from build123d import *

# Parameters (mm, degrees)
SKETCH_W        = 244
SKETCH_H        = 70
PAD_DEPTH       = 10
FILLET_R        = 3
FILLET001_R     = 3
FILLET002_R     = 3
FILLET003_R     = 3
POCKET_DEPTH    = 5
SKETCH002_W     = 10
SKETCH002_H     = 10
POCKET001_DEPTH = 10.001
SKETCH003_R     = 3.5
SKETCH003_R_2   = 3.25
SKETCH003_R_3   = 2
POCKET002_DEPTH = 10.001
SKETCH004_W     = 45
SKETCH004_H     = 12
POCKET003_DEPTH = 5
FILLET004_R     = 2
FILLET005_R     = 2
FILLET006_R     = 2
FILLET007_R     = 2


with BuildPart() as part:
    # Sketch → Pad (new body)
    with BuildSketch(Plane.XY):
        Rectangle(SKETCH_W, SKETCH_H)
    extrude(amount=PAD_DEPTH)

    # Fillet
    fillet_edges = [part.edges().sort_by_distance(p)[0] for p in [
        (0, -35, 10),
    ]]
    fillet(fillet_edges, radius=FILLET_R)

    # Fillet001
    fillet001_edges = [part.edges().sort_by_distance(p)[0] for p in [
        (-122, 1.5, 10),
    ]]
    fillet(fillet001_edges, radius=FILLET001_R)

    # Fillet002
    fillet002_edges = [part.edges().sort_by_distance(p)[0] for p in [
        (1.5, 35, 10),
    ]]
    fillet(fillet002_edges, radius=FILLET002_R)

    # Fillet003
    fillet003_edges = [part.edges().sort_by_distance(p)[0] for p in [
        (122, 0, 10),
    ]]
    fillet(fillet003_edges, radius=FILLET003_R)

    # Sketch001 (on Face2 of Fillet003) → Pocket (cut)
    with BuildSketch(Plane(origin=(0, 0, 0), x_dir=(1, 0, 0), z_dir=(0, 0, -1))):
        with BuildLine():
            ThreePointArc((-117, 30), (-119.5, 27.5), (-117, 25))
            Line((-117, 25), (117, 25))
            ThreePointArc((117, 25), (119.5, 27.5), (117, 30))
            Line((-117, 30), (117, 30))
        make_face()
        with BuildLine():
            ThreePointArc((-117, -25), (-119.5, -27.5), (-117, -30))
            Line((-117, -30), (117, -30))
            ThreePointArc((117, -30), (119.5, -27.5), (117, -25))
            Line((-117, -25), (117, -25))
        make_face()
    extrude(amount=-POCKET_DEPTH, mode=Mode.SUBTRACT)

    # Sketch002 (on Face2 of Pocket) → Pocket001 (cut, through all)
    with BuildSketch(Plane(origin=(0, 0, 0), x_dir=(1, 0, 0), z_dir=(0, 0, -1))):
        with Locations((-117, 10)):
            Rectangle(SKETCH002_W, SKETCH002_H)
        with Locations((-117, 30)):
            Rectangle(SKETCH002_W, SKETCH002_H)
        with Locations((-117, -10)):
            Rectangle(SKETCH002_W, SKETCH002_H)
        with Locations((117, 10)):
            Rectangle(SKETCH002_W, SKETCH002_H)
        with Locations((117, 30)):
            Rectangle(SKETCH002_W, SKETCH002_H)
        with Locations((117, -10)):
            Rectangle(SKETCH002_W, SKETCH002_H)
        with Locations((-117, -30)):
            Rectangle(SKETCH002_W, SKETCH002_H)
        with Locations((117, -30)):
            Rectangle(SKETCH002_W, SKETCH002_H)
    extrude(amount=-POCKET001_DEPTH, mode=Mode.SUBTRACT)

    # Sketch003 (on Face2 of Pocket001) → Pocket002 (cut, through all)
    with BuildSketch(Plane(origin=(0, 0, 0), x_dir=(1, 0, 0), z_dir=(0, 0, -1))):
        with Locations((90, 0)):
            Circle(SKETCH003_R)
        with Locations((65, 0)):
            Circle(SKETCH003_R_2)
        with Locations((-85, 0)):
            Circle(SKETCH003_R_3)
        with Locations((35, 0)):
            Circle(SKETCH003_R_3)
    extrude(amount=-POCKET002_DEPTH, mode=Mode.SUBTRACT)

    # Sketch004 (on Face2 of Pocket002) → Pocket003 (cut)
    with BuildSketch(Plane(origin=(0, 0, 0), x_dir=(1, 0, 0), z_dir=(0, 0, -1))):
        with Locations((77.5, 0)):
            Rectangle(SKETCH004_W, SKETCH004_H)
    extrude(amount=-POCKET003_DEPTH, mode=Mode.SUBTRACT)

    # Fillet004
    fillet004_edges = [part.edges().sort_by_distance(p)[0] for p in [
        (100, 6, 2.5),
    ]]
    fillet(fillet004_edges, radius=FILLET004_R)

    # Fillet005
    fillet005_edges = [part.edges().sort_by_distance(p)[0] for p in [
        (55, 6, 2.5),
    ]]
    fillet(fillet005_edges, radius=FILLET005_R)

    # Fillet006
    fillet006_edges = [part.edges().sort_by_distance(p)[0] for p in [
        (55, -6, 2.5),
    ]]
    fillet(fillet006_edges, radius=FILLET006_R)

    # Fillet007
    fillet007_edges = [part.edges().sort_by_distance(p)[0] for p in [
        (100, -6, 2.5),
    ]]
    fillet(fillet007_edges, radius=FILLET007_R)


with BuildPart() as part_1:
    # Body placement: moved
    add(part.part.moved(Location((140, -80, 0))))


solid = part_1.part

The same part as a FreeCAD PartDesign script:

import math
import FreeCAD as App
import Part
import Sketcher

V = App.Vector
Q = App.Units.Quantity


def edges_at(feature, points):
    """Names of the edges that pass closest to the given points."""
    edges = feature.Shape.Edges
    near = lambda p: min(range(len(edges)), key=lambda i: edges[i].distToShape(Part.Vertex(*p))[0])
    return sorted({f"Edge{near(p) + 1}" for p in points})

doc = App.newDocument("Part")
params = doc.addObject("Spreadsheet::Sheet", "Params")
for row, (alias, value) in enumerate([
    ("sketch1_width", "244 mm"),
    ("sketch1_height", "70 mm"),
    ("pad1_length", "10 mm"),
    ("fillet_radius", "3 mm"),
    ("fillet2_radius", "3 mm"),
    ("fillet3_radius", "3 mm"),
    ("fillet4_radius", "3 mm"),
    ("sketch2_radius", "2.5 mm"),
    ("sketch2_width", "234 mm"),
    ("pocket1_length", "5 mm"),
    ("sketch3_width", "10 mm"),
    ("sketch4_diameter", "7 mm"),
    ("sketch4_diameter2", "4 mm"),
    ("sketch4_diameter3", "6.5 mm"),
    ("sketch5_width", "45 mm"),
    ("sketch5_height", "12 mm"),
    ("pocket4_length", "5 mm"),
    ("fillet5_radius", "2 mm"),
    ("fillet6_radius", "2 mm"),
    ("fillet7_radius", "2 mm"),
    ("fillet8_radius", "2 mm"),
], start=1):
    params.set(f"A{row}", alias)
    params.set(f"B{row}", "=" + value)
    params.setAlias(f"B{row}", alias)

body = doc.addObject("PartDesign::Body", "Body")

sketch1 = body.newObject("Sketcher::SketchObject", "Sketch")
sketch1.AttachmentSupport = (doc.getObject("XY_Plane"), [""])
sketch1.MapMode = "FlatFace"
sketch1.addGeometry([
    Part.LineSegment(V(-122, 35, 0), V(-122, -35, 0)),
    Part.LineSegment(V(-122, -35, 0), V(122, -35, 0)),
    Part.LineSegment(V(122, -35, 0), V(122, 35, 0)),
    Part.LineSegment(V(122, 35, 0), V(-122, 35, 0)),
], False)
sketch1.addConstraint([
    Sketcher.Constraint("Coincident", 0, 2, 1, 1),
    Sketcher.Constraint("Coincident", 1, 2, 2, 1),
    Sketcher.Constraint("Coincident", 2, 2, 3, 1),
    Sketcher.Constraint("Coincident", 3, 2, 0, 1),
    Sketcher.Constraint("Vertical", 0),
    Sketcher.Constraint("Horizontal", 1),
    Sketcher.Constraint("Vertical", 2),
    Sketcher.Constraint("Horizontal", 3),
    Sketcher.Constraint("Symmetric", 0, 2, 2, 2, -1, 1),
    Sketcher.Constraint("DistanceX", 1, 1, 1, 2, Q("244 mm")),
    Sketcher.Constraint("DistanceY", 0, 2, 0, 1, Q("70 mm")),
])
sketch1.setExpression("Constraints[9]", "Params.sketch1_width")
sketch1.setExpression("Constraints[10]", "Params.sketch1_height")
pad1 = body.newObject("PartDesign::Pad", "Pad")
pad1.Profile = sketch1
pad1.setExpression("Length", "Params.pad1_length")
doc.recompute()

fillet = body.newObject("PartDesign::Fillet", "Fillet")
fillet.Base = (pad1, edges_at(pad1, [(0, -35, 10)]))
fillet.setExpression("Radius", "Params.fillet_radius")
doc.recompute()

fillet2 = body.newObject("PartDesign::Fillet", "Fillet001")
fillet2.Base = (fillet, edges_at(fillet, [(-122, 1.5, 10)]))
fillet2.setExpression("Radius", "Params.fillet2_radius")
doc.recompute()

fillet3 = body.newObject("PartDesign::Fillet", "Fillet002")
fillet3.Base = (fillet2, edges_at(fillet2, [(1.5, 35, 10)]))
fillet3.setExpression("Radius", "Params.fillet3_radius")
doc.recompute()

fillet4 = body.newObject("PartDesign::Fillet", "Fillet003")
fillet4.Base = (fillet3, edges_at(fillet3, [(122, 0, 10)]))
fillet4.setExpression("Radius", "Params.fillet4_radius")

sketch2 = body.newObject("Sketcher::SketchObject", "Sketch001")
sketch2.AttachmentSupport = (doc.getObject("XY_Plane"), [""])
sketch2.MapMode = "FlatFace"
sketch2.addGeometry([
    Part.ArcOfCircle(Part.Circle(V(-117, -27.5, 0), V(0, 0, 1), 2.5), math.radians(90), math.radians(270)),
    Part.LineSegment(V(-117, -25, 0), V(117, -25, 0)),
    Part.ArcOfCircle(Part.Circle(V(117, -27.5, 0), V(0, 0, 1), 2.5), math.radians(-90), math.radians(90)),
    Part.LineSegment(V(117, -30, 0), V(-117, -30, 0)),
    Part.ArcOfCircle(Part.Circle(V(-117, 27.5, 0), V(0, 0, 1), 2.5), math.radians(90), math.radians(270)),
    Part.LineSegment(V(-117, 30, 0), V(117, 30, 0)),
    Part.ArcOfCircle(Part.Circle(V(117, 27.5, 0), V(0, 0, 1), 2.5), math.radians(-90), math.radians(90)),
    Part.LineSegment(V(117, 25, 0), V(-117, 25, 0)),
], False)
sketch2.addConstraint([
    Sketcher.Constraint("Tangent", 0, 1, 1, 1),
    Sketcher.Constraint("Tangent", 1, 2, 2, 2),
    Sketcher.Constraint("Tangent", 2, 1, 3, 1),
    Sketcher.Constraint("Tangent", 3, 2, 0, 2),
    Sketcher.Constraint("Tangent", 4, 1, 5, 1),
    Sketcher.Constraint("Tangent", 5, 2, 6, 2),
    Sketcher.Constraint("Tangent", 6, 1, 7, 1),
    Sketcher.Constraint("Tangent", 7, 2, 4, 2),
    Sketcher.Constraint("Horizontal", 1),
    Sketcher.Constraint("Horizontal", 3),
    Sketcher.Constraint("Horizontal", 5),
    Sketcher.Constraint("Horizontal", 7),
    Sketcher.Constraint("Equal", 2, 4),
    Sketcher.Constraint("Symmetric", 2, 3, 4, 3, -1, 1),
    Sketcher.Constraint("Vertical", 0, 3, 4, 3),
    Sketcher.Constraint("Vertical", 2, 3, 6, 3),
    Sketcher.Constraint("Radius", 0, Q("2.5 mm")),
    Sketcher.Constraint("DistanceX", 1, 1, 1, 2, Q("234 mm")),
    Sketcher.Constraint("DistanceY", 0, 1, -1, 1, Q("25 mm")),
])
sketch2.setExpression("Constraints[16]", "Params.sketch2_radius")
sketch2.setExpression("Constraints[17]", "Params.sketch2_width")
pocket1 = body.newObject("PartDesign::Pocket", "Pocket")
pocket1.Profile = sketch2
pocket1.setExpression("Length", "Params.pocket1_length")
pocket1.Reversed = True

sketch3 = body.newObject("Sketcher::SketchObject", "Sketch002")
sketch3.AttachmentSupport = (doc.getObject("XY_Plane"), [""])
sketch3.MapMode = "FlatFace"
sketch3.addGeometry([
    Part.LineSegment(V(-122, -15, 0), V(-122, -5, 0)),
    Part.LineSegment(V(-122, -5, 0), V(-112, -5, 0)),
    Part.LineSegment(V(-112, -5, 0), V(-112, -15, 0)),
    Part.LineSegment(V(-112, -15, 0), V(-122, -15, 0)),
    Part.LineSegment(V(-122, -35, 0), V(-122, -25, 0)),
    Part.LineSegment(V(-122, -25, 0), V(-112, -25, 0)),
    Part.LineSegment(V(-112, -25, 0), V(-112, -35, 0)),
    Part.LineSegment(V(-112, -35, 0), V(-122, -35, 0)),
    Part.LineSegment(V(-122, 5, 0), V(-122, 15, 0)),
    Part.LineSegment(V(-122, 15, 0), V(-112, 15, 0)),
    Part.LineSegment(V(-112, 15, 0), V(-112, 5, 0)),
    Part.LineSegment(V(-112, 5, 0), V(-122, 5, 0)),
    Part.LineSegment(V(112, -15, 0), V(112, -5, 0)),
    Part.LineSegment(V(112, -5, 0), V(122, -5, 0)),
    Part.LineSegment(V(122, -5, 0), V(122, -15, 0)),
    Part.LineSegment(V(122, -15, 0), V(112, -15, 0)),
    Part.LineSegment(V(112, -35, 0), V(112, -25, 0)),
    Part.LineSegment(V(112, -25, 0), V(122, -25, 0)),
    Part.LineSegment(V(122, -25, 0), V(122, -35, 0)),
    Part.LineSegment(V(122, -35, 0), V(112, -35, 0)),
    Part.LineSegment(V(112, 5, 0), V(112, 15, 0)),
    Part.LineSegment(V(112, 15, 0), V(122, 15, 0)),
    Part.LineSegment(V(122, 15, 0), V(122, 5, 0)),
    Part.LineSegment(V(122, 5, 0), V(112, 5, 0)),
    Part.LineSegment(V(-122, 25, 0), V(-122, 35, 0)),
    Part.LineSegment(V(-122, 35, 0), V(-112, 35, 0)),
    Part.LineSegment(V(-112, 35, 0), V(-112, 25, 0)),
    Part.LineSegment(V(-112, 25, 0), V(-122, 25, 0)),
    Part.LineSegment(V(112, 25, 0), V(112, 35, 0)),
    Part.LineSegment(V(112, 35, 0), V(122, 35, 0)),
    Part.LineSegment(V(122, 35, 0), V(122, 25, 0)),
    Part.LineSegment(V(122, 25, 0), V(112, 25, 0)),
], False)
sketch3.addConstraint([
    Sketcher.Constraint("Coincident", 0, 2, 1, 1),
    Sketcher.Constraint("Coincident", 1, 2, 2, 1),
    Sketcher.Constraint("Coincident", 2, 2, 3, 1),
    Sketcher.Constraint("Coincident", 3, 2, 0, 1),
    Sketcher.Constraint("Coincident", 4, 2, 5, 1),
    Sketcher.Constraint("Coincident", 5, 2, 6, 1),
    Sketcher.Constraint("Coincident", 6, 2, 7, 1),
    Sketcher.Constraint("Coincident", 7, 2, 4, 1),
    Sketcher.Constraint("Coincident", 8, 2, 9, 1),
    Sketcher.Constraint("Coincident", 9, 2, 10, 1),
    Sketcher.Constraint("Coincident", 10, 2, 11, 1),
    Sketcher.Constraint("Coincident", 11, 2, 8, 1),
    Sketcher.Constraint("Coincident", 12, 2, 13, 1),
    Sketcher.Constraint("Coincident", 13, 2, 14, 1),
    Sketcher.Constraint("Coincident", 14, 2, 15, 1),
    Sketcher.Constraint("Coincident", 15, 2, 12, 1),
    Sketcher.Constraint("Coincident", 16, 2, 17, 1),
    Sketcher.Constraint("Coincident", 17, 2, 18, 1),
    Sketcher.Constraint("Coincident", 18, 2, 19, 1),
    Sketcher.Constraint("Coincident", 19, 2, 16, 1),
    Sketcher.Constraint("Coincident", 20, 2, 21, 1),
    Sketcher.Constraint("Coincident", 21, 2, 22, 1),
    Sketcher.Constraint("Coincident", 22, 2, 23, 1),
    Sketcher.Constraint("Coincident", 23, 2, 20, 1),
    Sketcher.Constraint("Coincident", 24, 2, 25, 1),
    Sketcher.Constraint("Coincident", 25, 2, 26, 1),
    Sketcher.Constraint("Coincident", 26, 2, 27, 1),
    Sketcher.Constraint("Coincident", 27, 2, 24, 1),
    Sketcher.Constraint("Coincident", 28, 2, 29, 1),
    Sketcher.Constraint("Coincident", 29, 2, 30, 1),
    Sketcher.Constraint("Coincident", 30, 2, 31, 1),
    Sketcher.Constraint("Coincident", 31, 2, 28, 1),
    Sketcher.Constraint("Vertical", 0),
    Sketcher.Constraint("Horizontal", 1),
    Sketcher.Constraint("Vertical", 2),
    Sketcher.Constraint("Horizontal", 3),
    Sketcher.Constraint("Vertical", 4),
    Sketcher.Constraint("Horizontal", 5),
    Sketcher.Constraint("Vertical", 6),
    Sketcher.Constraint("Horizontal", 7),
    Sketcher.Constraint("Vertical", 8),
    Sketcher.Constraint("Horizontal", 9),
    Sketcher.Constraint("Vertical", 10),
    Sketcher.Constraint("Horizontal", 11),
    Sketcher.Constraint("Vertical", 12),
    Sketcher.Constraint("Horizontal", 13),
    Sketcher.Constraint("Vertical", 14),
    Sketcher.Constraint("Horizontal", 15),
    Sketcher.Constraint("Vertical", 16),
    Sketcher.Constraint("Horizontal", 17),
    Sketcher.Constraint("Vertical", 18),
    Sketcher.Constraint("Horizontal", 19),
    Sketcher.Constraint("Vertical", 20),
    Sketcher.Constraint("Horizontal", 21),
    Sketcher.Constraint("Vertical", 22),
    Sketcher.Constraint("Horizontal", 23),
    Sketcher.Constraint("Vertical", 24),
    Sketcher.Constraint("Horizontal", 25),
    Sketcher.Constraint("Vertical", 26),
    Sketcher.Constraint("Horizontal", 27),
    Sketcher.Constraint("Vertical", 28),
    Sketcher.Constraint("Horizontal", 29),
    Sketcher.Constraint("Vertical", 30),
    Sketcher.Constraint("Horizontal", 31),
    Sketcher.Constraint("Symmetric", 10, 2, 12, 2, -1, 1),
    Sketcher.Constraint("Symmetric", 8, 2, 14, 2, -1, 1),
    Sketcher.Constraint("Symmetric", 2, 2, 20, 2, -1, 1),
    Sketcher.Constraint("Symmetric", 0, 2, 22, 2, -1, 1),
    Sketcher.Constraint("Symmetric", 18, 2, 24, 2, -1, 1),
    Sketcher.Constraint("Symmetric", 16, 2, 26, 2, -1, 1),
    Sketcher.Constraint("Symmetric", 6, 2, 28, 2, -1, 1),
    Sketcher.Constraint("Symmetric", 4, 2, 30, 2, -1, 1),
    Sketcher.Constraint("Symmetric", 1, 2, 12, 2, -2),
    Sketcher.Constraint("Symmetric", 3, 2, 14, 2, -2),
    Sketcher.Constraint("Symmetric", 5, 2, 16, 2, -2),
    Sketcher.Constraint("Symmetric", 7, 2, 18, 2, -2),
    Sketcher.Constraint("Vertical", 3, 2, 4, 2),
    Sketcher.Constraint("Vertical", 2, 2, 5, 2),
    Sketcher.Constraint("Equal", 31, 0),
    Sketcher.Constraint("Equal", 2, 4),
    Sketcher.Constraint("DistanceX", 1, 1, 1, 2, Q("10 mm")),
    Sketcher.Constraint("DistanceX", 0, 2, -1, 1, Q("122 mm")),
    Sketcher.Constraint("DistanceY", 0, 2, -1, 1, Q("5 mm")),
    Sketcher.Constraint("DistanceY", 4, 2, -1, 1, Q("25 mm")),
])
sketch3.setExpression("Constraints[80]", "Params.sketch3_width")
pocket2 = body.newObject("PartDesign::Pocket", "Pocket001")
pocket2.Profile = sketch3
pocket2.Type = "ThroughAll"
pocket2.Reversed = True

sketch4 = body.newObject("Sketcher::SketchObject", "Sketch003")
sketch4.AttachmentSupport = (doc.getObject("XY_Plane"), [""])
sketch4.MapMode = "FlatFace"
sketch4.addGeometry([
    Part.Circle(V(90, 0, 0), V(0, 0, 1), 3.5),
    Part.Circle(V(65, 0, 0), V(0, 0, 1), 3.2),
    Part.Circle(V(-85, 0, 0), V(0, 0, 1), 2),
    Part.Circle(V(35, 0, 0), V(0, 0, 1), 2),
], False)
sketch4.addConstraint([
    Sketcher.Constraint("Equal", 2, 3),
    Sketcher.Constraint("PointOnObject", 0, 3, -1),
    Sketcher.Constraint("PointOnObject", 1, 3, -1),
    Sketcher.Constraint("PointOnObject", 2, 3, -1),
    Sketcher.Constraint("PointOnObject", 3, 3, -1),
    Sketcher.Constraint("Diameter", 0, Q("7 mm")),
    Sketcher.Constraint("Diameter", 2, Q("4 mm")),
    Sketcher.Constraint("Diameter", 1, Q("6.5 mm")),
    Sketcher.Constraint("DistanceX", -1, 1, 0, 3, Q("90 mm")),
    Sketcher.Constraint("DistanceX", -1, 1, 1, 3, Q("65 mm")),
    Sketcher.Constraint("DistanceX", 2, 3, -1, 1, Q("85 mm")),
    Sketcher.Constraint("DistanceX", -1, 1, 3, 3, Q("35 mm")),
])
sketch4.setExpression("Constraints[5]", "Params.sketch4_diameter")
sketch4.setExpression("Constraints[6]", "Params.sketch4_diameter2")
sketch4.setExpression("Constraints[7]", "Params.sketch4_diameter3")
pocket3 = body.newObject("PartDesign::Pocket", "Pocket002")
pocket3.Profile = sketch4
pocket3.Type = "ThroughAll"
pocket3.Reversed = True

sketch5 = body.newObject("Sketcher::SketchObject", "Sketch004")
sketch5.AttachmentSupport = (doc.getObject("XY_Plane"), [""])
sketch5.MapMode = "FlatFace"
sketch5.addGeometry([
    Part.LineSegment(V(55, -6, 0), V(55, 6, 0)),
    Part.LineSegment(V(55, 6, 0), V(100, 6, 0)),
    Part.LineSegment(V(100, 6, 0), V(100, -6, 0)),
    Part.LineSegment(V(100, -6, 0), V(55, -6, 0)),
], False)
sketch5.addConstraint([
    Sketcher.Constraint("Coincident", 0, 2, 1, 1),
    Sketcher.Constraint("Coincident", 1, 2, 2, 1),
    Sketcher.Constraint("Coincident", 2, 2, 3, 1),
    Sketcher.Constraint("Coincident", 3, 2, 0, 1),
    Sketcher.Constraint("Vertical", 0),
    Sketcher.Constraint("Horizontal", 1),
    Sketcher.Constraint("Vertical", 2),
    Sketcher.Constraint("Horizontal", 3),
    Sketcher.Constraint("DistanceX", 1, 1, 1, 2, Q("45 mm")),
    Sketcher.Constraint("DistanceY", 0, 1, 0, 2, Q("12 mm")),
    Sketcher.Constraint("DistanceX", -1, 1, 0, 2, Q("55 mm")),
    Sketcher.Constraint("DistanceY", -1, 1, 0, 2, Q("6 mm")),
])
sketch5.setExpression("Constraints[8]", "Params.sketch5_width")
sketch5.setExpression("Constraints[9]", "Params.sketch5_height")
pocket4 = body.newObject("PartDesign::Pocket", "Pocket003")
pocket4.Profile = sketch5
pocket4.setExpression("Length", "Params.pocket4_length")
pocket4.Reversed = True
doc.recompute()

fillet5 = body.newObject("PartDesign::Fillet", "Fillet004")
fillet5.Base = (pocket4, edges_at(pocket4, [(100, 6, 2.5)]))
fillet5.setExpression("Radius", "Params.fillet5_radius")
doc.recompute()

fillet6 = body.newObject("PartDesign::Fillet", "Fillet005")
fillet6.Base = (fillet5, edges_at(fillet5, [(55, 6, 2.5)]))
fillet6.setExpression("Radius", "Params.fillet6_radius")
doc.recompute()

fillet7 = body.newObject("PartDesign::Fillet", "Fillet006")
fillet7.Base = (fillet6, edges_at(fillet6, [(55, -6, 2.5)]))
fillet7.setExpression("Radius", "Params.fillet7_radius")
doc.recompute()

fillet8 = body.newObject("PartDesign::Fillet", "Fillet007")
fillet8.Base = (fillet7, edges_at(fillet7, [(100, -6, 2.5)]))
fillet8.setExpression("Radius", "Params.fillet8_radius")
body2 = doc.addObject("PartDesign::Body", "Body001")
doc.recompute()

body.Placement = App.Placement(V(140, -80, 0), App.Rotation(V(0, 0, 1), 0))
boolean = body2.newObject("PartDesign::Boolean", "Boolean")
boolean.Type = "Fuse"
boolean.addObjects([body])

doc.recompute()
